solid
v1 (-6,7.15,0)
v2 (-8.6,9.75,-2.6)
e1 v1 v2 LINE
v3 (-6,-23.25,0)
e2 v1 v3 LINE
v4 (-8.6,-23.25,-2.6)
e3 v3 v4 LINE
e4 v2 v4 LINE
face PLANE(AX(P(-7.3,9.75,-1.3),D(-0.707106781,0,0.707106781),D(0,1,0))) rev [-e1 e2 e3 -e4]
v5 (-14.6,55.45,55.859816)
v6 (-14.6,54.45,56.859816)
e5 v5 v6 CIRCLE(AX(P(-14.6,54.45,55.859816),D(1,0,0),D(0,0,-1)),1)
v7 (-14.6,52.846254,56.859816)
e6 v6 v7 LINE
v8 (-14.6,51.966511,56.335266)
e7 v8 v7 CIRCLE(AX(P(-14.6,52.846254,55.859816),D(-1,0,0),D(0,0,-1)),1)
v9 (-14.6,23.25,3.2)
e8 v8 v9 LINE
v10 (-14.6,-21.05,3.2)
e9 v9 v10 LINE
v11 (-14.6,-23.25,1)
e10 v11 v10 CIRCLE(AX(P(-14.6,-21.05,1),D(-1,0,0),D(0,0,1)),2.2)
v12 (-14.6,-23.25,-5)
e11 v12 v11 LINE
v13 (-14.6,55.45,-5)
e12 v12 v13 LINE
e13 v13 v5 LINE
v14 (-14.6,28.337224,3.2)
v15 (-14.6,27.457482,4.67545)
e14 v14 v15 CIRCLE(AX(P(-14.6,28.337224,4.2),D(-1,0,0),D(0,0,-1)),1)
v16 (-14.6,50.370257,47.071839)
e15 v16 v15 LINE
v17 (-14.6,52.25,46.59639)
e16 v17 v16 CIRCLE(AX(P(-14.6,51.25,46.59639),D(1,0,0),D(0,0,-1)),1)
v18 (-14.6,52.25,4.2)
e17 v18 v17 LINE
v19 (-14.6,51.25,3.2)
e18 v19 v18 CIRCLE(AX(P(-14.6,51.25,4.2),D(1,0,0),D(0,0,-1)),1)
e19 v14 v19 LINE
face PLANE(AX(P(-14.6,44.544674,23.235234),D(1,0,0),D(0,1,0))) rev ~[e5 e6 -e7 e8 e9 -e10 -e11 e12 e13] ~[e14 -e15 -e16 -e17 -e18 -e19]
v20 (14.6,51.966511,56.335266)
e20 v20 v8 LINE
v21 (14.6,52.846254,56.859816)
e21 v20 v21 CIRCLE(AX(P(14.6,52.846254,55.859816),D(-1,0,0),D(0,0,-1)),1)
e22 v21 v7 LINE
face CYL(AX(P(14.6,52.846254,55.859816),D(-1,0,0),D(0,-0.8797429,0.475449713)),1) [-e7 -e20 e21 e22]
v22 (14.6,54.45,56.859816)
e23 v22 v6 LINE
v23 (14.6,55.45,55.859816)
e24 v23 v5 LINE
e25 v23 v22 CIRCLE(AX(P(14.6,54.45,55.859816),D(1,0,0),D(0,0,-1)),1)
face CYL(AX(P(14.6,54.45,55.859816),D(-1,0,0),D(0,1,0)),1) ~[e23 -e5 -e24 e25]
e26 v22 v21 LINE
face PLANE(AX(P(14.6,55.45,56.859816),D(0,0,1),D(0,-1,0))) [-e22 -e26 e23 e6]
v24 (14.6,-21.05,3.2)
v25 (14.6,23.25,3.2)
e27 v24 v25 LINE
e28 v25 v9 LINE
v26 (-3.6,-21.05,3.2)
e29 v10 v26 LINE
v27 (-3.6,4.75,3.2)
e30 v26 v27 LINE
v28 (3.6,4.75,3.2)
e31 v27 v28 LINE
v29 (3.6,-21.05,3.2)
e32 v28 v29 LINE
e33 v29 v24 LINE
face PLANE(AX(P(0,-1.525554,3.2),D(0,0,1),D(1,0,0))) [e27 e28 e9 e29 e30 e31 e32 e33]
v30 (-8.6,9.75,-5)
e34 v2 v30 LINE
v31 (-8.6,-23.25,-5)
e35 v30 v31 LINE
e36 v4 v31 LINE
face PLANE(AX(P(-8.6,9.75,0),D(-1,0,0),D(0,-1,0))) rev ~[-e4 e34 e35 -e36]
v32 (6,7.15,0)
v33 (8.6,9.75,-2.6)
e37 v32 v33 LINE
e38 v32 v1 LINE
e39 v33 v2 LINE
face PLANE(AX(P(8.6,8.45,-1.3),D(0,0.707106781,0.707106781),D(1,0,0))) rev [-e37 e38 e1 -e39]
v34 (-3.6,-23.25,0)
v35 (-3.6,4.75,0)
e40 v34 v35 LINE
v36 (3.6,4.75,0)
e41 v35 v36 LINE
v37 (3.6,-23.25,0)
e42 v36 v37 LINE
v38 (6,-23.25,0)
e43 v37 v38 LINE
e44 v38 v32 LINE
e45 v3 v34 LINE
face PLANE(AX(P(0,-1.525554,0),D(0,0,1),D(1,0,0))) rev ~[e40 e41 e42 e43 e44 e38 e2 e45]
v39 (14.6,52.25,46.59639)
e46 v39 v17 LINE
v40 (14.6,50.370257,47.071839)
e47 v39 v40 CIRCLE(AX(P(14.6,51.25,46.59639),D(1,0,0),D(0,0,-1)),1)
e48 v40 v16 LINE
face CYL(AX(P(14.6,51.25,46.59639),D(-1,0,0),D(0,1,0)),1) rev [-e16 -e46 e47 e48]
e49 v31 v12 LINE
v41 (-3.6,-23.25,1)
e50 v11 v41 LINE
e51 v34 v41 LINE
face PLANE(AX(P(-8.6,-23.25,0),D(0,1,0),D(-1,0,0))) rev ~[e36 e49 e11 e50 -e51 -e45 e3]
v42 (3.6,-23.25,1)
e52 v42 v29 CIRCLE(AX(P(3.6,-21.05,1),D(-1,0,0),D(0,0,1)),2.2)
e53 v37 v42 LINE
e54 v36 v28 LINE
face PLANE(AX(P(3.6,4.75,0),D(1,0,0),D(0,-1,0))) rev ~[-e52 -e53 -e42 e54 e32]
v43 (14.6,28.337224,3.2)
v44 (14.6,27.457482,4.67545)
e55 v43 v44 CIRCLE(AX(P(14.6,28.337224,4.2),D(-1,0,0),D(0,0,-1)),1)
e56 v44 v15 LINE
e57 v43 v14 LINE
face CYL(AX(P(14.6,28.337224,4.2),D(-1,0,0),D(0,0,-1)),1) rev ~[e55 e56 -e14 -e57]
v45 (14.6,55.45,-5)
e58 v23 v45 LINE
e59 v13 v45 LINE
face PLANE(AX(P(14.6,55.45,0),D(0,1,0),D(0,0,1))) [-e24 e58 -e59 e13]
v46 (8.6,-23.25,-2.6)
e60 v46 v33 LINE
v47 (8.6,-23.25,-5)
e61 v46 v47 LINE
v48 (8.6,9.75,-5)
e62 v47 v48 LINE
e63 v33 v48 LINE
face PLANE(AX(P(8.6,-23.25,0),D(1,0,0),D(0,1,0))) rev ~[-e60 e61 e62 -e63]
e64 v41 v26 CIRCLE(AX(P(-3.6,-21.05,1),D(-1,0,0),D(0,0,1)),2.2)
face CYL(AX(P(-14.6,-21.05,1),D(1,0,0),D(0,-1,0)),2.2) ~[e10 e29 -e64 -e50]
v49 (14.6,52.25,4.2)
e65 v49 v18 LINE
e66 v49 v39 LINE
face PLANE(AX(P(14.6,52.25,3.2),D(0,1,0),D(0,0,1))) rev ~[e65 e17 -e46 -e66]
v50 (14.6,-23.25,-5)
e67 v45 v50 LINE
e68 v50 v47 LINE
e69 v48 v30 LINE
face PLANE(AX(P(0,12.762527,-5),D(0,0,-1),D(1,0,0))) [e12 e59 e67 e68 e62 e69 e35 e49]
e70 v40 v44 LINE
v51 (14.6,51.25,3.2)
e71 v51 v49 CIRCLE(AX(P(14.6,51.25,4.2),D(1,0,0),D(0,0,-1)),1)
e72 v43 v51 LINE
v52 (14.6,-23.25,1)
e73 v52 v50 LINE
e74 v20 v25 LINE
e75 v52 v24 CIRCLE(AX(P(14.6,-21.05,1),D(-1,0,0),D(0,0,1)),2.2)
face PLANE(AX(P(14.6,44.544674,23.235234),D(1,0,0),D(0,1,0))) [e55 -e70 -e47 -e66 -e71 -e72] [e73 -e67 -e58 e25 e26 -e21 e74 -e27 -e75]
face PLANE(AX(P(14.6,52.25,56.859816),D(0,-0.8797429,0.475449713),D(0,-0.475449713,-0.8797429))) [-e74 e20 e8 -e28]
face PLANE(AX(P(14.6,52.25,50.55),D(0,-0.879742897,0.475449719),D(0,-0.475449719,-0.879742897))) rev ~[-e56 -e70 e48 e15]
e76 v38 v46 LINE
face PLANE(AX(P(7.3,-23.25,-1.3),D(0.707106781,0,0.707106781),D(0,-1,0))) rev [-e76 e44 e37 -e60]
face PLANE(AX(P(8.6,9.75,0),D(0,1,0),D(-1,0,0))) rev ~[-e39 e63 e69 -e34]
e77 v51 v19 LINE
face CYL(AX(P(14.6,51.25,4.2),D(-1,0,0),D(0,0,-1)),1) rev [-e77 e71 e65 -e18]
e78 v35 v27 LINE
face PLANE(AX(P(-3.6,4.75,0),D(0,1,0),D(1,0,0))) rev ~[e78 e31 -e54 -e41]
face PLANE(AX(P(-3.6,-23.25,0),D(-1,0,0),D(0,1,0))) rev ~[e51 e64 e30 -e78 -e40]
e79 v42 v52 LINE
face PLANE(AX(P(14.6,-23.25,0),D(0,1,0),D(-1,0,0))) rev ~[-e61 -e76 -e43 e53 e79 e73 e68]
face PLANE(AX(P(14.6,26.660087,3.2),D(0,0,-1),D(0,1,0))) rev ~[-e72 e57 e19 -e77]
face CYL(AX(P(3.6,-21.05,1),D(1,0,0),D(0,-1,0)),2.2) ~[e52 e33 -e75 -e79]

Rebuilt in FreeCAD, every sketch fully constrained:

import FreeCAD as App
import Part
import Sketcher


def edges_at(feature, points):
    """Names of the edges that pass closest to the given points."""
    edges = feature.Shape.Edges
    near = lambda p: min(range(len(edges)), key=lambda i: edges[i].distToShape(Part.Vertex(*p))[0])
    return sorted({f"Edge{near(p) + 1}" for p in points})

doc = App.newDocument("Part")
body = doc.addObject("PartDesign::Body", "Body")

# Sketch on XY plane
sketch1 = body.newObject("Sketcher::SketchObject", "Sketch")
sketch1.AttachmentSupport = (doc.getObject("XY_Plane"), [""])
sketch1.MapMode = "FlatFace"
sketch1.addGeometry([
    Part.LineSegment(App.Vector(15, 55, 0), App.Vector(15, -23, 0)),  # 0
    Part.LineSegment(App.Vector(15, -23, 0), App.Vector(9, -23, 0)),  # 1
    Part.LineSegment(App.Vector(9, -23, 0), App.Vector(9, 10, 0)),  # 2
    Part.LineSegment(App.Vector(9, 10, 0), App.Vector(-9, 10, 0)),  # 3
    Part.LineSegment(App.Vector(-9, 10, 0), App.Vector(-9, -23, 0)),  # 4
    Part.LineSegment(App.Vector(-9, -23, 0), App.Vector(-15, -23, 0)),  # 5
    Part.LineSegment(App.Vector(-15, -23, 0), App.Vector(-15, 55, 0)),  # 6
    Part.LineSegment(App.Vector(-15, 55, 0), App.Vector(15, 55, 0)),  # 7
], False)
sketch1.addConstraint([
    Sketcher.Constraint("Coincident", 0, 2, 1, 1),
    Sketcher.Constraint("Coincident", 1, 2, 2, 1),
    Sketcher.Constraint("Coincident", 2, 2, 3, 1),
    Sketcher.Constraint("Coincident", 3, 2, 4, 1),
    Sketcher.Constraint("Coincident", 4, 2, 5, 1),
    Sketcher.Constraint("Coincident", 5, 2, 6, 1),
    Sketcher.Constraint("Coincident", 6, 2, 7, 1),
    Sketcher.Constraint("Coincident", 7, 2, 0, 1),
    Sketcher.Constraint("Vertical", 0),
    Sketcher.Constraint("Horizontal", 1),
    Sketcher.Constraint("Vertical", 2),
    Sketcher.Constraint("Horizontal", 3),
    Sketcher.Constraint("Vertical", 4),
    Sketcher.Constraint("Horizontal", 5),
    Sketcher.Constraint("Vertical", 6),
    Sketcher.Constraint("Horizontal", 7),
    Sketcher.Constraint("Symmetric", 1, 2, 4, 2, -2),
    Sketcher.Constraint("Equal", 1, 5),
    Sketcher.Constraint("DistanceX", 1, 2, 1, 1, 6.0),
    Sketcher.Constraint("DistanceY", 2, 1, 2, 2, 33.0),
    Sketcher.Constraint("DistanceX", 3, 2, 3, 1, 17.2),
    Sketcher.Constraint("DistanceY", 0, 2, 0, 1, 78.7),
    Sketcher.Constraint("DistanceY", 0, 2, -1, 1, 23.25),
])
pad1 = body.newObject("PartDesign::Pad", "Pad")
pad1.Profile = sketch1
pad1.Length = 5
pad1.Reversed = True
body2 = doc.addObject("PartDesign::Body", "Body001")

# Sketch on YZ plane
sketch2 = body2.newObject("Sketcher::SketchObject", "Sketch001")
sketch2.AttachmentSupport = (doc.getObject("YZ_Plane001"), [""])
sketch2.MapMode = "FlatFace"
sketch2.AttachmentOffset = App.Placement(App.Vector(0, 0, 14.6), App.Rotation())
sketch2.addGeometry([
    Part.LineSegment(App.Vector(23.2, 0, 0), App.Vector(55.5, 0, 0)),  # 0
    Part.LineSegment(App.Vector(55.5, 0, 0), App.Vector(55.5, 56.9, 0)),  # 1
    Part.LineSegment(App.Vector(55.5, 56.9, 0), App.Vector(52.2, 56.9, 0)),  # 2
    Part.LineSegment(App.Vector(52.2, 56.9, 0), App.Vector(23.2, 3.2, 0)),  # 3
    Part.LineSegment(App.Vector(23.2, 3.2, 0), App.Vector(23.2, 0, 0)),  # 4
    Part.LineSegment(App.Vector(52.2, 3.2, 0), App.Vector(26.7, 3.2, 0)),  # 5
    Part.LineSegment(App.Vector(26.7, 3.2, 0), App.Vector(52.2, 50.5, 0)),  # 6
    Part.LineSegment(App.Vector(52.2, 50.5, 0), App.Vector(52.2, 3.2, 0)),  # 7
], False)
sketch2.addConstraint([
    Sketcher.Constraint("Coincident", 0, 2, 1, 1),
    Sketcher.Constraint("Coincident", 1, 2, 2, 1),
    Sketcher.Constraint("Coincident", 2, 2, 3, 1),
    Sketcher.Constraint("Coincident", 3, 2, 4, 1),
    Sketcher.Constraint("Coincident", 4, 2, 0, 1),
    Sketcher.Constraint("Coincident", 5, 2, 6, 1),
    Sketcher.Constraint("Coincident", 6, 2, 7, 1),
    Sketcher.Constraint("Coincident", 7, 2, 5, 1),
    Sketcher.Constraint("Horizontal", 0),
    Sketcher.Constraint("Vertical", 1),
    Sketcher.Constraint("Horizontal", 2),
    Sketcher.Constraint("Vertical", 4),
    Sketcher.Constraint("Horizontal", 5),
    Sketcher.Constraint("Vertical", 7),
    Sketcher.Constraint("PointOnObject", 0, 2, -1),
    Sketcher.Constraint("Parallel", 3, 6),
    Sketcher.Constraint("Horizontal", 3, 2, 5, 2),
    Sketcher.Constraint("Vertical", 2, 2, 6, 2),
    Sketcher.Constraint("Equal", 2, 4),
    Sketcher.Constraint("DistanceX", 0, 1, 0, 2, 32.2),
    Sketcher.Constraint("DistanceX", 2, 2, 2, 1, 3.2),
    Sketcher.Constraint("DistanceY", 7, 2, 7, 1, 47.35),
    Sketcher.Constraint("DistanceX", -1, 1, 0, 2, 55.45),
    Sketcher.Constraint("DistanceX", 5, 2, 5, 1, 25.589913),
])
pad2 = body2.newObject("PartDesign::Pad", "Pad001")
pad2.Profile = sketch2
pad2.Length = 29.2
pad2.Reversed = True
doc.recompute()

fillet = body2.newObject("PartDesign::Fillet", "Fillet")
fillet.Base = (pad2, edges_at(pad2, [
    (0, 52.25, 3.2),
    (0, 26.66, 3.2),
    (0, 52.25, 50.55),
    (0, 52.25, 56.86),
    (0, 55.45, 56.86),
]))
fillet.Radius = 1
body3 = doc.addObject("PartDesign::Body", "Body002")

# Sketch on XY plane
sketch3 = body3.newObject("Sketcher::SketchObject", "Sketch002")
sketch3.AttachmentSupport = (doc.getObject("XY_Plane002"), [""])
sketch3.MapMode = "FlatFace"
sketch3.addGeometry([
    Part.LineSegment(App.Vector(-15, 23, 0), App.Vector(-15, -23, 0)),  # 0
    Part.LineSegment(App.Vector(-15, -23, 0), App.Vector(-4, -23, 0)),  # 1
    Part.LineSegment(App.Vector(-4, -23, 0), App.Vector(-4, 5, 0)),  # 2
    Part.LineSegment(App.Vector(-4, 5, 0), App.Vector(4, 5, 0)),  # 3
    Part.LineSegment(App.Vector(4, 5, 0), App.Vector(4, -23, 0)),  # 4
    Part.LineSegment(App.Vector(4, -23, 0), App.Vector(15, -23, 0)),  # 5
    Part.LineSegment(App.Vector(15, -23, 0), App.Vector(15, 23, 0)),  # 6
    Part.LineSegment(App.Vector(15, 23, 0), App.Vector(-15, 23, 0)),  # 7
], False)
sketch3.addConstraint([
    Sketcher.Constraint("Coincident", 0, 2, 1, 1),
    Sketcher.Constraint("Coincident", 1, 2, 2, 1),
    Sketcher.Constraint("Coincident", 2, 2, 3, 1),
    Sketcher.Constraint("Coincident", 3, 2, 4, 1),
    Sketcher.Constraint("Coincident", 4, 2, 5, 1),
    Sketcher.Constraint("Coincident", 5, 2, 6, 1),
    Sketcher.Constraint("Coincident", 6, 2, 7, 1),
    Sketcher.Constraint("Coincident", 7, 2, 0, 1),
    Sketcher.Constraint("Vertical", 0),
    Sketcher.Constraint("Horizontal", 1),
    Sketcher.Constraint("Vertical", 2),
    Sketcher.Constraint("Horizontal", 3),
    Sketcher.Constraint("Vertical", 4),
    Sketcher.Constraint("Horizontal", 5),
    Sketcher.Constraint("Vertical", 6),
    Sketcher.Constraint("Horizontal", 7),
    Sketcher.Constraint("Symmetric", 0, 2, 6, 2, -1, 1),
    Sketcher.Constraint("Symmetric", 1, 2, 4, 2, -2),
    Sketcher.Constraint("DistanceX", 1, 1, 1, 2, 11.0),
    Sketcher.Constraint("DistanceY", 2, 1, 2, 2, 28.0),
    Sketcher.Constraint("DistanceX", 3, 1, 3, 2, 7.2),
    Sketcher.Constraint("DistanceY", 0, 2, 0, 1, 46.5),
])
pad3 = body3.newObject("PartDesign::Pad", "Pad002")
pad3.Profile = sketch3
pad3.Length = 3.2
doc.recompute()

fillet2 = body3.newObject("PartDesign::Fillet", "Fillet001")
fillet2.Base = (pad3, edges_at(pad3, [(9.1, -23.25, 3.2), (-9.1, -23.25, 3.2)]))
fillet2.Radius = 2.2
doc.recompute()

boolean = body3.newObject("PartDesign::Boolean", "Boolean")
boolean.Type = "Fuse"
boolean.addObjects([body])
doc.recompute()

boolean2 = body3.newObject("PartDesign::Boolean", "Boolean001")
boolean2.Type = "Fuse"
boolean2.addObjects([body2])
doc.recompute()

chamfer = body3.newObject("PartDesign::Chamfer", "Chamfer")
chamfer.Base = (boolean2, edges_at(boolean2, [(-8.6, -6.75, 0), (0, 9.75, 0), (8.6, -6.75, 0)]))
chamfer.Size = 2.6

doc.recompute()
